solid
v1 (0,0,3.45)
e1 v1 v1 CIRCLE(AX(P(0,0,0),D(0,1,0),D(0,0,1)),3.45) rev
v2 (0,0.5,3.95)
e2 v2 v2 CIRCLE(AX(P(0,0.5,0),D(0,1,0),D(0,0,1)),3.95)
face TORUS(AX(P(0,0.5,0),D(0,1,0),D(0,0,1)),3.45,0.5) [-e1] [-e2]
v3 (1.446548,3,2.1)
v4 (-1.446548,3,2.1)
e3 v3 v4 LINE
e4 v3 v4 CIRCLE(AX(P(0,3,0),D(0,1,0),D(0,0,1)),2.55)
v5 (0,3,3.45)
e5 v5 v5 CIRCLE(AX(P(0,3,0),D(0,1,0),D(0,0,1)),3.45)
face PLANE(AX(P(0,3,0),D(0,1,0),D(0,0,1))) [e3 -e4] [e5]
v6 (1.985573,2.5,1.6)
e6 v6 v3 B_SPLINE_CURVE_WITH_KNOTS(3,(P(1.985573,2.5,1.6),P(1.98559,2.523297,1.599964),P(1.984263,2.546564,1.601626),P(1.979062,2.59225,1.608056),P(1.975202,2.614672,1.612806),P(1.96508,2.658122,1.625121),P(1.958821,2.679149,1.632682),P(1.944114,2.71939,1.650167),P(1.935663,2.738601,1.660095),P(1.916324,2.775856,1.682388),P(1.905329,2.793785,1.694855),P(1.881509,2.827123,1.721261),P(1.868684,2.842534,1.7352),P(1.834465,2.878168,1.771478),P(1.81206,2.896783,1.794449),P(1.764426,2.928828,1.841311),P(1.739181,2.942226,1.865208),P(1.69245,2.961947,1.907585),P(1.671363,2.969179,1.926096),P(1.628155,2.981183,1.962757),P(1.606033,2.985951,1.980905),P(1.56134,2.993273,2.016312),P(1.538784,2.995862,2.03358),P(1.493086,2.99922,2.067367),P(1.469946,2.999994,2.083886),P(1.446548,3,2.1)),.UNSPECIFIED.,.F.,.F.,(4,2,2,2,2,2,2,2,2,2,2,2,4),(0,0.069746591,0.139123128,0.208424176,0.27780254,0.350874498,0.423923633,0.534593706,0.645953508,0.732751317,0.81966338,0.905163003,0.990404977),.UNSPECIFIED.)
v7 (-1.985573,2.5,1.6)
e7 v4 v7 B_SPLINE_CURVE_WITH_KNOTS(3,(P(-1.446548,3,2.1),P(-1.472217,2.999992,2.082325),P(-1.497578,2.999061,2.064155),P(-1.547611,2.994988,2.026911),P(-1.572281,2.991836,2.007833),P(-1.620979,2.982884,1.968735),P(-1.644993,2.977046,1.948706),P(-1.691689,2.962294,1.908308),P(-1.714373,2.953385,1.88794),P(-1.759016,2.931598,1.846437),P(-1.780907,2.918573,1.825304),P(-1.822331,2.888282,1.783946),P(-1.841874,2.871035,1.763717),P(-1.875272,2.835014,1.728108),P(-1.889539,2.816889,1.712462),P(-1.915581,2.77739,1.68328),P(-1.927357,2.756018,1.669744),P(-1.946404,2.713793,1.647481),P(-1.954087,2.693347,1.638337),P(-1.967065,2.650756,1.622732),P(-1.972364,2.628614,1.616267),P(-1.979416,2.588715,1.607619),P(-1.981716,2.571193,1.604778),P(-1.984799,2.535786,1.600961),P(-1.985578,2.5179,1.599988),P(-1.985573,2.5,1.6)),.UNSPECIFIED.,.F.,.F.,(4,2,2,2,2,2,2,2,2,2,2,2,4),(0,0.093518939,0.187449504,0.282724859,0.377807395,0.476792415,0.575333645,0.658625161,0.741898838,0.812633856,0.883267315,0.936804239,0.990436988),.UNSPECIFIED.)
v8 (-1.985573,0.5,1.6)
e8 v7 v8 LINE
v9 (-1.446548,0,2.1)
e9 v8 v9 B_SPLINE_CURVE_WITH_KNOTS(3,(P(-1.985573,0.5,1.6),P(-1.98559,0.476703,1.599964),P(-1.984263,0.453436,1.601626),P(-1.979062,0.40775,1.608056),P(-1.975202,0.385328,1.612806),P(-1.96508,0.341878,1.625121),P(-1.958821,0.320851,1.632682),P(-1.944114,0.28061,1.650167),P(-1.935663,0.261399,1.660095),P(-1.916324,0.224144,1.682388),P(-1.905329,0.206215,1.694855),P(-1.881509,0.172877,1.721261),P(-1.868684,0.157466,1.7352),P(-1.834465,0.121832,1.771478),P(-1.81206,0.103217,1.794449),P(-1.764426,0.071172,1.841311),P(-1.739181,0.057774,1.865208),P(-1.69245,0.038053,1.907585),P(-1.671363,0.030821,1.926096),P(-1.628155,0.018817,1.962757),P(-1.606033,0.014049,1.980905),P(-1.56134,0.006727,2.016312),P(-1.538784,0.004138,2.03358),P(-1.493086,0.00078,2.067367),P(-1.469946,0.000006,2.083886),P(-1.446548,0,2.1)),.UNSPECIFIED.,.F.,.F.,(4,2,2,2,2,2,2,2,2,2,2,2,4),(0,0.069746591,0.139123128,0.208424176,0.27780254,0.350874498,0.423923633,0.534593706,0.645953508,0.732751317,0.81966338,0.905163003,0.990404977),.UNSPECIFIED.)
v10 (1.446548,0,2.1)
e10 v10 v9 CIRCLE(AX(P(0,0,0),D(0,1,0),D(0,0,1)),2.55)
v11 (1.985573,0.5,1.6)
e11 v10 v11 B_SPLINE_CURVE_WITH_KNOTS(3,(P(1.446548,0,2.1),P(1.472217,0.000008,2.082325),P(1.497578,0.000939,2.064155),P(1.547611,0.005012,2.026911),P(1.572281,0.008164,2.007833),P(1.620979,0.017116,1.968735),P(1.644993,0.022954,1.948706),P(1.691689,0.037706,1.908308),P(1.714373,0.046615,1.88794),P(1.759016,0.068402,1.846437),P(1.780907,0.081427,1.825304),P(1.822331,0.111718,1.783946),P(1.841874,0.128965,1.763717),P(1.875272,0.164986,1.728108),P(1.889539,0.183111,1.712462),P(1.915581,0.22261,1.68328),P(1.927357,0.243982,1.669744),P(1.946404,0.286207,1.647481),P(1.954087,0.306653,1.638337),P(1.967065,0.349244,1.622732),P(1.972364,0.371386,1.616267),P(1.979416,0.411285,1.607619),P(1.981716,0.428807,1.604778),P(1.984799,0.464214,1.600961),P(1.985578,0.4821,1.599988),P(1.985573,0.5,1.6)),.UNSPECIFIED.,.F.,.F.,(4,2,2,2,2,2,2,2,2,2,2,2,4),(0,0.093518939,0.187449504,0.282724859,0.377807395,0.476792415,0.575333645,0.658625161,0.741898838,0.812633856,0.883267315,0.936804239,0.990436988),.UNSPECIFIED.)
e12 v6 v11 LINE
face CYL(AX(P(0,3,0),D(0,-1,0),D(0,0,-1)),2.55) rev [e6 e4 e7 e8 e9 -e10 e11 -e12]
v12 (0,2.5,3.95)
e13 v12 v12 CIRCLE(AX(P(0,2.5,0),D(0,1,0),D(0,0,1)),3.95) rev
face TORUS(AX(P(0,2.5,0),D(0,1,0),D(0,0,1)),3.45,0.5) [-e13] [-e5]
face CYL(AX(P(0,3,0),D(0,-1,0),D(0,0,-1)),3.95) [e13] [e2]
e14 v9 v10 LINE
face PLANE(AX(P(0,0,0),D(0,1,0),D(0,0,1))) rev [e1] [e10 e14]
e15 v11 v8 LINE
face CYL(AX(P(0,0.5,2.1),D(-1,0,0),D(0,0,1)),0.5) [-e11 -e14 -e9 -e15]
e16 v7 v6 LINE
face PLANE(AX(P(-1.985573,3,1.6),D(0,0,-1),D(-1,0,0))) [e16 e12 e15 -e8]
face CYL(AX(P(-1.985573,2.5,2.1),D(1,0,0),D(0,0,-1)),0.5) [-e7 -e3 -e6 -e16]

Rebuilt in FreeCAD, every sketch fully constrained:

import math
import FreeCAD as App
import Part
import Sketcher
from FreeCAD import Vector


def edges_at(feature, points):
    """Names of the edges that pass closest to the given points."""
    edges = feature.Shape.Edges
    near = lambda p: min(range(len(edges)), key=lambda i: edges[i].distToShape(Part.Vertex(*p))[0])
    return sorted({f"Edge{near(p) + 1}" for p in points})

doc = App.newDocument("Part")
body = doc.addObject("PartDesign::Body", "Body")

sketch1 = doc.addObject("Sketcher::SketchObject", "Sketch")
body.addObject(sketch1)
sketch1.AttachmentSupport = (doc.XZ_Plane, [""])
sketch1.MapMode = "FlatFace"
sketch1.addGeometry(Part.Circle(Vector(0, 0, 0), Vector(0, 0, 1), 4), False)
sketch1.addGeometry(Part.LineSegment(Vector(2, 1.6, 0), Vector(-2, 1.6, 0)), False)
sketch1.addGeometry(Part.ArcOfCircle(Part.Circle(Vector(0, 0, 0), Vector(0, 0, 1), 2.5), math.radians(141), math.radians(399)), False)
sketch1.addConstraint(Sketcher.Constraint("Coincident", 1, 1, 2, 2))
sketch1.addConstraint(Sketcher.Constraint("Coincident", 2, 1, 1, 2))
sketch1.addConstraint(Sketcher.Constraint("Horizontal", 1))
sketch1.addConstraint(Sketcher.Constraint("Coincident", 0, 3, -1, 1))
sketch1.addConstraint(Sketcher.Constraint("Coincident", 2, 3, -1, 1))
sketch1.addConstraint(Sketcher.Constraint("Diameter", 0, 7.9))
sketch1.addConstraint(Sketcher.Constraint("Radius", 2, 2.55))
sketch1.addConstraint(Sketcher.Constraint("DistanceY", -1, 1, 1, 1, 1.6))
pad1 = doc.addObject("PartDesign::Pad", "Pad")
body.addObject(pad1)
pad1.Profile = sketch1
pad1.Length = 3
pad1.Reversed = True
doc.recompute()

fillet = doc.addObject("PartDesign::Fillet", "Fillet")
body.addObject(fillet)
fillet.Base = (pad1, edges_at(pad1, [
    (-3.95, 0, 0),
    (-3.95, 3, 0),
    (0, 0, 1.6),
    (0, 3, 1.6),
]))
fillet.Radius = 0.5

doc.recompute()
